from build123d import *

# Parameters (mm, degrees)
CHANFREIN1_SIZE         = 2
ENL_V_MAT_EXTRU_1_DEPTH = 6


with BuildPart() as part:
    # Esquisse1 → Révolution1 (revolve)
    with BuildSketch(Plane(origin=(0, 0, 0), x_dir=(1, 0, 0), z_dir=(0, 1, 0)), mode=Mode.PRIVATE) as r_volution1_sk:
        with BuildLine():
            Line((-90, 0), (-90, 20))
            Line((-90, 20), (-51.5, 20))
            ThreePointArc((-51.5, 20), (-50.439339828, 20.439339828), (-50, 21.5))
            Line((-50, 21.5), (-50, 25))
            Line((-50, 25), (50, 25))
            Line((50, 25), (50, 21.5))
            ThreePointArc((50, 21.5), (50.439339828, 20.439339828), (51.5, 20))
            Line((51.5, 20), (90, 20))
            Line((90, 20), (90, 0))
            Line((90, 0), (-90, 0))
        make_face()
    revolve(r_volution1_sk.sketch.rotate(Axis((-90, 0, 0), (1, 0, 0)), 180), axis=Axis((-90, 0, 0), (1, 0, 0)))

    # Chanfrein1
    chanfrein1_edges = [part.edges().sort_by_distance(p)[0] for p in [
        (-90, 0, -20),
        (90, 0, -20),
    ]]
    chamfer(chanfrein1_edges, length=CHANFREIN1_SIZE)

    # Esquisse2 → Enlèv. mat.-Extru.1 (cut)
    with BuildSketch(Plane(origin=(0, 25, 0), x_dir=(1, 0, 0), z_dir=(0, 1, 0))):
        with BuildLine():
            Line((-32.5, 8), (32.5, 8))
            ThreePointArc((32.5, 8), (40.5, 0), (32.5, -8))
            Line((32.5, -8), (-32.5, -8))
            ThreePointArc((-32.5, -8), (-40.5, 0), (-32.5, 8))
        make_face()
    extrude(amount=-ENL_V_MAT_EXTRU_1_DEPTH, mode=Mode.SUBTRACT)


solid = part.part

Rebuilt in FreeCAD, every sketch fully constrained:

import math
import FreeCAD as App
import Part
import Sketcher
from FreeCAD import Vector
Q = App.Units.Quantity


def edges_at(feature, points):
    """Names of the edges that pass closest to the given points."""
    edges = feature.Shape.Edges
    near = lambda p: min(range(len(edges)), key=lambda i: edges[i].distToShape(Part.Vertex(*p))[0])
    return sorted({f"Edge{near(p) + 1}" for p in points})

doc = App.newDocument("Part")
body = doc.addObject("PartDesign::Body", "Body")

# Sketch on XZ plane
sketch1 = body.newObject("Sketcher::SketchObject", "Sketch")
sketch1.AttachmentSupport = (doc.getObject("XZ_Plane"), [""])
sketch1.MapMode = "FlatFace"
sketch1.addGeometry([
    Part.LineSegment(Vector(-90, -20, 0), Vector(-90, 0, 0)),  # 0
    Part.LineSegment(Vector(-90, 0, 0), Vector(90, 0, 0)),  # 1
    Part.LineSegment(Vector(90, 0, 0), Vector(90, -20, 0)),  # 2
    Part.LineSegment(Vector(90, -20, 0), Vector(51.5, -20, 0)),  # 3
    Part.ArcOfCircle(Part.Circle(Vector(51.5, -21.5, 0), Vector(0, 0, 1), 1.5), math.radians(90), math.radians(180)),  # 4
    Part.LineSegment(Vector(50, -21.5, 0), Vector(50, -25, 0)),  # 5
    Part.LineSegment(Vector(50, -25, 0), Vector(-50, -25, 0)),  # 6
    Part.LineSegment(Vector(-50, -25, 0), Vector(-50, -21.5, 0)),  # 7
    Part.ArcOfCircle(Part.Circle(Vector(-51.5, -21.5, 0), Vector(0, 0, 1), 1.5), math.radians(0), math.radians(90)),  # 8
    Part.LineSegment(Vector(-51.5, -20, 0), Vector(-90, -20, 0)),  # 9
], False)
sketch1.addConstraint([
    Sketcher.Constraint("Coincident", 0, 2, 1, 1),
    Sketcher.Constraint("Coincident", 1, 2, 2, 1),
    Sketcher.Constraint("Coincident", 2, 2, 3, 1),
    Sketcher.Constraint("Tangent", 3, 2, 4, 1),
    Sketcher.Constraint("Tangent", 4, 2, 5, 1),
    Sketcher.Constraint("Coincident", 5, 2, 6, 1),
    Sketcher.Constraint("Coincident", 6, 2, 7, 1),
    Sketcher.Constraint("Tangent", 7, 2, 8, 1),
    Sketcher.Constraint("Tangent", 8, 2, 9, 1),
    Sketcher.Constraint("Coincident", 9, 2, 0, 1),
    Sketcher.Constraint("Vertical", 0),
    Sketcher.Constraint("Horizontal", 1),
    Sketcher.Constraint("Vertical", 2),
    Sketcher.Constraint("Horizontal", 3),
    Sketcher.Constraint("Vertical", 5),
    Sketcher.Constraint("Horizontal", 6),
    Sketcher.Constraint("Vertical", 7),
    Sketcher.Constraint("Horizontal", 9),
    Sketcher.Constraint("Equal", 4, 8),
    Sketcher.Constraint("Symmetric", 0, 2, 1, 2, -1, 1),
    Sketcher.Constraint("Symmetric", 4, 3, 8, 3, -2),
    Sketcher.Constraint("Radius", 4, Q("1.5 mm")),
    Sketcher.Constraint("DistanceX", 1, 1, 1, 2, Q("180 mm")),
    Sketcher.Constraint("DistanceX", 6, 2, 6, 1, Q("100 mm")),
    Sketcher.Constraint("DistanceY", 0, 1, 0, 2, Q("20 mm")),
    Sketcher.Constraint("DistanceY", 5, 2, 5, 1, Q("3.5 mm")),
])
revolution = body.newObject("PartDesign::Revolution", "Revolution")
revolution.Profile = sketch1
revolution.ReferenceAxis = (sketch1, ["H_Axis"])
revolution.Angle = 360
doc.recompute()

chamfer = body.newObject("PartDesign::Chamfer", "Chamfer")
chamfer.Base = (revolution, edges_at(revolution, [(-90, 0, -20), (90, 0, -20)]))
chamfer.Size = 2

# Sketch on XZ plane
sketch2 = body.newObject("Sketcher::SketchObject", "Sketch001")
sketch2.AttachmentSupport = (doc.getObject("XZ_Plane"), [""])
sketch2.MapMode = "FlatFace"
sketch2.AttachmentOffset = App.Placement(Vector(0, 0, -25), App.Rotation())
sketch2.addGeometry([
    Part.LineSegment(Vector(32, -8, 0), Vector(-32, -8, 0)),
    Part.ArcOfCircle(Part.Circle(Vector(-32, 0, 0), Vector(0, 0, 1), 8), math.radians(90), math.radians(270)),
    Part.LineSegment(Vector(-32, 8, 0), Vector(32, 8, 0)),
    Part.ArcOfCircle(Part.Circle(Vector(32, 0, 0), Vector(0, 0, 1), 8), math.radians(-90), math.radians(90)),
], False)
sketch2.addConstraint([
    Sketcher.Constraint("Tangent", 0, 2, 1, 2),
    Sketcher.Constraint("Tangent", 1, 1, 2, 1),
    Sketcher.Constraint("Tangent", 2, 2, 3, 2),
    Sketcher.Constraint("Tangent", 3, 1, 0, 1),
    Sketcher.Constraint("Horizontal", 0),
    Sketcher.Constraint("Horizontal", 2),
    Sketcher.Constraint("Symmetric", 1, 3, 3, 3, -1, 1),
    Sketcher.Constraint("Radius", 1, Q("8 mm")),
    Sketcher.Constraint("DistanceX", 0, 2, 0, 1, Q("65 mm")),
])
pocket1 = body.newObject("PartDesign::Pocket", "Pocket")
pocket1.Profile = sketch2
pocket1.Length = 6
pocket1.Reversed = True

doc.recompute()
